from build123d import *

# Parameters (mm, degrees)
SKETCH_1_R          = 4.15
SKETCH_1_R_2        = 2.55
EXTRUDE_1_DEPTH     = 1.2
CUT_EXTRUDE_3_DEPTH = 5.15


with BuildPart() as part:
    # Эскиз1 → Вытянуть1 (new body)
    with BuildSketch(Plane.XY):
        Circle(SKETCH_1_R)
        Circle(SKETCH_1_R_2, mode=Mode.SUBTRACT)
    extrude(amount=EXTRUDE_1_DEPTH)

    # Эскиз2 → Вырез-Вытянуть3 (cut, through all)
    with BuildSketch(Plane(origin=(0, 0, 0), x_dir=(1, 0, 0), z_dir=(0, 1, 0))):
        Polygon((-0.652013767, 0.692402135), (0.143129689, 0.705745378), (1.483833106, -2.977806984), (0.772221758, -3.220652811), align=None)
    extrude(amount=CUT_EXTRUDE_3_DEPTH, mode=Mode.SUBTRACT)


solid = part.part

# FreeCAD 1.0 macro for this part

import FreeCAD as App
import Part
import Sketcher
Q = App.Units.Quantity


def add_polygon(sketch, points):
    """Adds a closed chain of lines whose ends are joined by coincident constraints."""
    first, n = sketch.GeometryCount, len(points)
    for a, b in zip(points, points[1:] + points[:1]):
        sketch.addGeometry(Part.LineSegment(App.Vector(*a, 0), App.Vector(*b, 0)), False)
    for i in range(n):
        sketch.addConstraint(Sketcher.Constraint("Coincident", first + i, 2, first + (i + 1) % n, 1))

doc = App.newDocument("Part")
body = doc.addObject("PartDesign::Body", "Body")

sketch1 = body.newObject("Sketcher::SketchObject", "Sketch")
sketch1.AttachmentSupport = (doc.getObject("XY_Plane"), [""])
sketch1.MapMode = "FlatFace"
sketch1.addGeometry([
    Part.Circle(App.Vector(0, 0, 0), App.Vector(0, 0, 1), 4.2),
    Part.Circle(App.Vector(0, 0, 0), App.Vector(0, 0, 1), 2.5),
], False)
sketch1.addConstraint([
    Sketcher.Constraint("Coincident", 0, 3, -1, 1),
    Sketcher.Constraint("Coincident", 1, 3, -1, 1),
    Sketcher.Constraint("Diameter", 0, 8.3),
    Sketcher.Constraint("Diameter", 1, 5.1),
])
pad1 = body.newObject("PartDesign::Pad", "Pad")
pad1.Profile = sketch1
pad1.Length = 1.2

sketch2 = body.newObject("Sketcher::SketchObject", "Sketch001")
sketch2.AttachmentSupport = (doc.getObject("XZ_Plane"), [""])
sketch2.MapMode = "FlatFace"
add_polygon(sketch2, [(0.1, -0.7), (-0.7, -0.7), (0.8, 3.2), (1.5, 3)])
sketch2.addConstraint([
    Sketcher.Constraint("Parallel", 1, 3),
    Sketcher.Constraint("Angle", 1, Q("70 deg")),
    Sketcher.Constraint("DistanceY", 3, 2, 1, 2, 3.926398),
    Sketcher.Constraint("DistanceX", -1, 1, 1, 2, 0.772222),
    Sketcher.Constraint("DistanceX", -1, 1, 3, 2, 0.14313),
    Sketcher.Constraint("DistanceX", 1, 2, 2, 2, 0.711611),
    Sketcher.Constraint("DistanceY", 0, 2, 2, 2, 3.670209),
    Sketcher.Constraint("DistanceY", 0, 2, -1, 1, 0.692402),
])
pocket1 = body.newObject("PartDesign::Pocket", "Pocket")
pocket1.Profile = sketch2
pocket1.Type = "ThroughAll"

doc.recompute()
